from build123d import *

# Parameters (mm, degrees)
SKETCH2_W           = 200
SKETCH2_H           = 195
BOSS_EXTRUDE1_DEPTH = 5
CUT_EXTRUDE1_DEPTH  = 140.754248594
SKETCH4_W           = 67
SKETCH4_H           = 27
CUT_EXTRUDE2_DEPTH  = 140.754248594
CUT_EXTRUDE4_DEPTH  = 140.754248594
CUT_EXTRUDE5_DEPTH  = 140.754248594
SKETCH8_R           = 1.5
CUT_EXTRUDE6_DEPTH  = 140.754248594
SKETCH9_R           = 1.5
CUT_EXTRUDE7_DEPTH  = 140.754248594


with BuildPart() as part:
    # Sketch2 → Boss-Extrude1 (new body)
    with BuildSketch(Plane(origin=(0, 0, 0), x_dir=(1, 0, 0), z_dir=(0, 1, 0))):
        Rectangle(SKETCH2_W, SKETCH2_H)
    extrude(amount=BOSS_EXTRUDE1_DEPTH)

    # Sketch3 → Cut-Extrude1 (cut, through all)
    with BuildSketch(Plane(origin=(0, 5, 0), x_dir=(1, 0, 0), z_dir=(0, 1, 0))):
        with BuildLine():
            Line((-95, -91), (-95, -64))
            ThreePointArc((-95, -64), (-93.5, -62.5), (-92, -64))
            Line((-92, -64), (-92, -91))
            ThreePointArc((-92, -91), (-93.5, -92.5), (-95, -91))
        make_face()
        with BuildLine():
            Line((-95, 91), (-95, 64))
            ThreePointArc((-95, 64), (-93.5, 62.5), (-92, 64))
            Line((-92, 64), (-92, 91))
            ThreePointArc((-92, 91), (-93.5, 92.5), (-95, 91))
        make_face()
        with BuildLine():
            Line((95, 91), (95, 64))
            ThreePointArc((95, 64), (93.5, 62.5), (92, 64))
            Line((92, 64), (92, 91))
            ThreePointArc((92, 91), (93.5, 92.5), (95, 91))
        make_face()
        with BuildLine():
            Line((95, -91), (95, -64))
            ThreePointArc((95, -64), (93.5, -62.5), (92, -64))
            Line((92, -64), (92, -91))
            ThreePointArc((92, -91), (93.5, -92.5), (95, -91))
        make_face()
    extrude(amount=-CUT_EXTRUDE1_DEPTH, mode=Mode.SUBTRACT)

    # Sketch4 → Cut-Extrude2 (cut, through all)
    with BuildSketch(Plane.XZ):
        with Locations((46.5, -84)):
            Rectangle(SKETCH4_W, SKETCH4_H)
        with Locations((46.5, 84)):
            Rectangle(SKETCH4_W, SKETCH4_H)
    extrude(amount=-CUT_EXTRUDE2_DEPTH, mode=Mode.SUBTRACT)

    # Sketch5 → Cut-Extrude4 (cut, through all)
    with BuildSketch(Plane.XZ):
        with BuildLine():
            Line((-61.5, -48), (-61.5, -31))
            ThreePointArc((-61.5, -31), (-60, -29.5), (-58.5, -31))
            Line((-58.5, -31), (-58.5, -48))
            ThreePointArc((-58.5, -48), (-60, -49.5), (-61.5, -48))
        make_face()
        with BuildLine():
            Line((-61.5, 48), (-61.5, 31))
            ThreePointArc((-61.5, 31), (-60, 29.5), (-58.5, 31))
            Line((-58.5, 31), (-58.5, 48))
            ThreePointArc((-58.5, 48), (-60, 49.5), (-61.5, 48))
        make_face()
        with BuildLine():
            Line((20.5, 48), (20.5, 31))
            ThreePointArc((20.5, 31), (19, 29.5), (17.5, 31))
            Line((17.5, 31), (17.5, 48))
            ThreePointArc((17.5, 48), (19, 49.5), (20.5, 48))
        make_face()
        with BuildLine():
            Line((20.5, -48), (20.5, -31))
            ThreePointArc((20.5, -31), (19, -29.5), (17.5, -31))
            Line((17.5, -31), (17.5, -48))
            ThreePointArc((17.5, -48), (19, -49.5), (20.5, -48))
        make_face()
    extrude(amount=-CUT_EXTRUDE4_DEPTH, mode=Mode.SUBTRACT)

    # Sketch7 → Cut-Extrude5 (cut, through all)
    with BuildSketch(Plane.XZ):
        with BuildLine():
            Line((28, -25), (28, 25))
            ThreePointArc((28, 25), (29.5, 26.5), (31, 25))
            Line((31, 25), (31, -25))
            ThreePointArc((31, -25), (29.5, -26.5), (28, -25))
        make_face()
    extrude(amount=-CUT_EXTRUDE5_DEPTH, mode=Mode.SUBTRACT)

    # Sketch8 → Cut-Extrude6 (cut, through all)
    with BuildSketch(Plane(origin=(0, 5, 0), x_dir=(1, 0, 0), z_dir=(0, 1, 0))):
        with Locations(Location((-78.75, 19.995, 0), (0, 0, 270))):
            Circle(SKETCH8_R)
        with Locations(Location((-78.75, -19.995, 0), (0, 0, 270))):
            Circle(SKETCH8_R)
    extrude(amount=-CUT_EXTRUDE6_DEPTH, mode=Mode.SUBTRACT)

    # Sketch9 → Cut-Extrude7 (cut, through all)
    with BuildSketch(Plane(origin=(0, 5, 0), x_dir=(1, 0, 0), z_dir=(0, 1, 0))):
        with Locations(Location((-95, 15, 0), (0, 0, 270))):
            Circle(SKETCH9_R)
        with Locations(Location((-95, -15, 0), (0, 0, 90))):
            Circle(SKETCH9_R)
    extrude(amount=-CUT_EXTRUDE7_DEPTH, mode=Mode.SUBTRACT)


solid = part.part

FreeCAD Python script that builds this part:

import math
import FreeCAD as App
import Part
import Sketcher


def add_polygon(sketch, points):
    """Adds a closed chain of lines whose ends are joined by coincident constraints."""
    first, n = sketch.GeometryCount, len(points)
    for a, b in zip(points, points[1:] + points[:1]):
        sketch.addGeometry(Part.LineSegment(App.Vector(*a, 0), App.Vector(*b, 0)), False)
    for i in range(n):
        sketch.addConstraint(Sketcher.Constraint("Coincident", first + i, 2, first + (i + 1) % n, 1))

doc = App.newDocument("Part")
body = doc.addObject("PartDesign::Body", "Body")

# Sketch on XZ plane
sketch1 = doc.addObject("Sketcher::SketchObject", "Sketch")
body.addObject(sketch1)
sketch1.AttachmentSupport = (doc.XZ_Plane, [""])
sketch1.MapMode = "FlatFace"
add_polygon(sketch1, [(-100, -98), (-100, 98), (100, 98), (100, -98)])  # lines 0-3
sketch1.addConstraint(Sketcher.Constraint("Vertical", 0))
sketch1.addConstraint(Sketcher.Constraint("Horizontal", 1))
sketch1.addConstraint(Sketcher.Constraint("Vertical", 2))
sketch1.addConstraint(Sketcher.Constraint("Horizontal", 3))
sketch1.addConstraint(Sketcher.Constraint("Symmetric", 0, 2, 2, 2, -1, 1))
sketch1.addConstraint(Sketcher.Constraint("DistanceX", 1, 1, 1, 2, 200.0))
sketch1.addConstraint(Sketcher.Constraint("DistanceY", 0, 1, 0, 2, 195.0))
pad1 = doc.addObject("PartDesign::Pad", "Pad")
body.addObject(pad1)
pad1.Profile = sketch1
pad1.Length = 5
pad1.Reversed = True

# Sketch on XZ plane
sketch2 = doc.addObject("Sketcher::SketchObject", "Sketch001")
body.addObject(sketch2)
sketch2.AttachmentSupport = (doc.XZ_Plane, [""])
sketch2.MapMode = "FlatFace"
sketch2.AttachmentOffset = App.Placement(App.Vector(0, 0, -5), App.Rotation())
sketch2.addGeometry(Part.LineSegment(App.Vector(-95, 64, 0), App.Vector(-95, 91, 0)), False)
sketch2.addGeometry(Part.ArcOfCircle(Part.Circle(App.Vector(-93.5, 91, 0), App.Vector(0, 0, 1), 1.5), math.radians(0), math.radians(180)), False)
sketch2.addGeometry(Part.LineSegment(App.Vector(-92, 91, 0), App.Vector(-92, 64, 0)), False)
sketch2.addGeometry(Part.ArcOfCircle(Part.Circle(App.Vector(-93.5, 64, 0), App.Vector(0, 0, 1), 1.5), math.radians(180), math.radians(360)), False)
sketch2.addGeometry(Part.LineSegment(App.Vector(-95, -91, 0), App.Vector(-95, -64, 0)), False)
sketch2.addGeometry(Part.ArcOfCircle(Part.Circle(App.Vector(-93.5, -64, 0), App.Vector(0, 0, 1), 1.5), math.radians(0), math.radians(180)), False)
sketch2.addGeometry(Part.LineSegment(App.Vector(-92, -64, 0), App.Vector(-92, -91, 0)), False)
sketch2.addGeometry(Part.ArcOfCircle(Part.Circle(App.Vector(-93.5, -91, 0), App.Vector(0, 0, 1), 1.5), math.radians(180), math.radians(360)), False)
sketch2.addGeometry(Part.LineSegment(App.Vector(95, -64, 0), App.Vector(95, -91, 0)), False)
sketch2.addGeometry(Part.ArcOfCircle(Part.Circle(App.Vector(93.5, -91, 0), App.Vector(0, 0, 1), 1.5), math.radians(180), math.radians(360)), False)
sketch2.addGeometry(Part.LineSegment(App.Vector(92, -91, 0), App.Vector(92, -64, 0)), False)
sketch2.addGeometry(Part.ArcOfCircle(Part.Circle(App.Vector(93.5, -64, 0), App.Vector(0, 0, 1), 1.5), math.radians(0), math.radians(180)), False)
sketch2.addGeometry(Part.LineSegment(App.Vector(95, 91, 0), App.Vector(95, 64, 0)), False)
sketch2.addGeometry(Part.ArcOfCircle(Part.Circle(App.Vector(93.5, 64, 0), App.Vector(0, 0, 1), 1.5), math.radians(180), math.radians(360)), False)
sketch2.addGeometry(Part.LineSegment(App.Vector(92, 64, 0), App.Vector(92, 91, 0)), False)
sketch2.addGeometry(Part.ArcOfCircle(Part.Circle(App.Vector(93.5, 91, 0), App.Vector(0, 0, 1), 1.5), math.radians(0), math.radians(180)), False)
sketch2.addConstraint(Sketcher.Constraint("Tangent", 0, 2, 1, 2))
sketch2.addConstraint(Sketcher.Constraint("Tangent", 1, 1, 2, 1))
sketch2.addConstraint(Sketcher.Constraint("Tangent", 2, 2, 3, 2))
sketch2.addConstraint(Sketcher.Constraint("Tangent", 3, 1, 0, 1))
sketch2.addConstraint(Sketcher.Constraint("Tangent", 4, 2, 5, 2))
sketch2.addConstraint(Sketcher.Constraint("Tangent", 5, 1, 6, 1))
sketch2.addConstraint(Sketcher.Constraint("Tangent", 6, 2, 7, 2))
sketch2.addConstraint(Sketcher.Constraint("Tangent", 7, 1, 4, 1))
sketch2.addConstraint(Sketcher.Constraint("Tangent", 8, 2, 9, 2))
sketch2.addConstraint(Sketcher.Constraint("Tangent", 9, 1, 10, 1))
sketch2.addConstraint(Sketcher.Constraint("Tangent", 10, 2, 11, 2))
sketch2.addConstraint(Sketcher.Constraint("Tangent", 11, 1, 8, 1))
sketch2.addConstraint(Sketcher.Constraint("Tangent", 12, 2, 13, 2))
sketch2.addConstraint(Sketcher.Constraint("Tangent", 13, 1, 14, 1))
sketch2.addConstraint(Sketcher.Constraint("Tangent", 14, 2, 15, 2))
sketch2.addConstraint(Sketcher.Constraint("Tangent", 15, 1, 12, 1))
sketch2.addConstraint(Sketcher.Constraint("Vertical", 0))
sketch2.addConstraint(Sketcher.Constraint("Vertical", 2))
sketch2.addConstraint(Sketcher.Constraint("Vertical", 4))
sketch2.addConstraint(Sketcher.Constraint("Vertical", 6))
sketch2.addConstraint(Sketcher.Constraint("Vertical", 8))
sketch2.addConstraint(Sketcher.Constraint("Vertical", 10))
sketch2.addConstraint(Sketcher.Constraint("Vertical", 12))
sketch2.addConstraint(Sketcher.Constraint("Vertical", 14))
sketch2.addConstraint(Sketcher.Constraint("Equal", 3, 5))
sketch2.addConstraint(Sketcher.Constraint("Equal", 7, 9))
sketch2.addConstraint(Sketcher.Constraint("Equal", 11, 13))
sketch2.addConstraint(Sketcher.Constraint("Symmetric", 1, 3, 9, 3, -1, 1))
sketch2.addConstraint(Sketcher.Constraint("Symmetric", 5, 3, 13, 3, -1, 1))
sketch2.addConstraint(Sketcher.Constraint("Symmetric", 7, 3, 9, 3, -2))
sketch2.addConstraint(Sketcher.Constraint("Horizontal", 5, 3, 11, 3))
sketch2.addConstraint(Sketcher.Constraint("Horizontal", 3, 3, 13, 3))
sketch2.addConstraint(Sketcher.Constraint("Horizontal", 1, 3, 15, 3))
sketch2.addConstraint(Sketcher.Constraint("Radius", 1, 1.5))
sketch2.addConstraint(Sketcher.Constraint("DistanceY", 0, 1, 0, 2, 27.0))
sketch2.addConstraint(Sketcher.Constraint("DistanceY", -1, 1, 1, 3, 91.0))
sketch2.addConstraint(Sketcher.Constraint("DistanceX", 0, 2, -1, 1, 95.0))
pocket1 = doc.addObject("PartDesign::Pocket", "Pocket")
body.addObject(pocket1)
pocket1.Profile = sketch2
pocket1.Type = "ThroughAll"
pocket1.Reversed = True

# Sketch on XZ plane
sketch3 = doc.addObject("Sketcher::SketchObject", "Sketch002")
body.addObject(sketch3)
sketch3.AttachmentSupport = (doc.XZ_Plane, [""])
sketch3.MapMode = "FlatFace"
add_polygon(sketch3, [(13, -70), (13, -98), (80, -98), (80, -70)])  # lines 0-3
add_polygon(sketch3, [(13, 98), (13, 70), (80, 70), (80, 98)])  # lines 4-7
sketch3.addConstraint(Sketcher.Constraint("Vertical", 0))
sketch3.addConstraint(Sketcher.Constraint("Horizontal", 1))
sketch3.addConstraint(Sketcher.Constraint("Vertical", 2))
sketch3.addConstraint(Sketcher.Constraint("Horizontal", 3))
sketch3.addConstraint(Sketcher.Constraint("Vertical", 4))
sketch3.addConstraint(Sketcher.Constraint("Horizontal", 5))
sketch3.addConstraint(Sketcher.Constraint("Vertical", 6))
sketch3.addConstraint(Sketcher.Constraint("Horizontal", 7))
sketch3.addConstraint(Sketcher.Constraint("Symmetric", 3, 2, 4, 2, -1))
sketch3.addConstraint(Sketcher.Constraint("Symmetric", 1, 2, 6, 2, -1))
sketch3.addConstraint(Sketcher.Constraint("DistanceX", 1, 1, 1, 2, 67.0))
sketch3.addConstraint(Sketcher.Constraint("DistanceY", 0, 2, 0, 1, 27.0))
sketch3.addConstraint(Sketcher.Constraint("DistanceX", -1, 1, 0, 2, 13.0))
sketch3.addConstraint(Sketcher.Constraint("DistanceY", 3, 2, 4, 2, 141.0))
pocket2 = doc.addObject("PartDesign::Pocket", "Pocket001")
body.addObject(pocket2)
pocket2.Profile = sketch3
pocket2.Type = "ThroughAll"

# Sketch on XZ plane
sketch4 = doc.addObject("Sketcher::SketchObject", "Sketch003")
body.addObject(sketch4)
sketch4.AttachmentSupport = (doc.XZ_Plane, [""])
sketch4.MapMode = "FlatFace"
sketch4.addGeometry(Part.LineSegment(App.Vector(-61.5, -31, 0), App.Vector(-61.5, -48, 0)), False)
sketch4.addGeometry(Part.ArcOfCircle(Part.Circle(App.Vector(-60, -48, 0), App.Vector(0, 0, 1), 1.5), math.radians(180), math.radians(360)), False)
sketch4.addGeometry(Part.LineSegment(App.Vector(-58.5, -48, 0), App.Vector(-58.5, -31, 0)), False)
sketch4.addGeometry(Part.ArcOfCircle(Part.Circle(App.Vector(-60, -31, 0), App.Vector(0, 0, 1), 1.5), math.radians(0), math.radians(180)), False)
sketch4.addGeometry(Part.LineSegment(App.Vector(-61.5, 48, 0), App.Vector(-61.5, 31, 0)), False)
sketch4.addGeometry(Part.ArcOfCircle(Part.Circle(App.Vector(-60, 31, 0), App.Vector(0, 0, 1), 1.5), math.radians(180), math.radians(360)), False)
sketch4.addGeometry(Part.LineSegment(App.Vector(-58.5, 31, 0), App.Vector(-58.5, 48, 0)), False)
sketch4.addGeometry(Part.ArcOfCircle(Part.Circle(App.Vector(-60, 48, 0), App.Vector(0, 0, 1), 1.5), math.radians(0), math.radians(180)), False)
sketch4.addGeometry(Part.LineSegment(App.Vector(20.5, 31, 0), App.Vector(20.5, 48, 0)), False)
sketch4.addGeometry(Part.ArcOfCircle(Part.Circle(App.Vector(19, 48, 0), App.Vector(0, 0, 1), 1.5), math.radians(0), math.radians(180)), False)
sketch4.addGeometry(Part.LineSegment(App.Vector(17.5, 48, 0), App.Vector(17.5, 31, 0)), False)
sketch4.addGeometry(Part.ArcOfCircle(Part.Circle(App.Vector(19, 31, 0), App.Vector(0, 0, 1), 1.5), math.radians(180), math.radians(360)), False)
sketch4.addGeometry(Part.LineSegment(App.Vector(20.5, -48, 0), App.Vector(20.5, -31, 0)), False)
sketch4.addGeometry(Part.ArcOfCircle(Part.Circle(App.Vector(19, -31, 0), App.Vector(0, 0, 1), 1.5), math.radians(0), math.radians(180)), False)
sketch4.addGeometry(Part.LineSegment(App.Vector(17.5, -31, 0), App.Vector(17.5, -48, 0)), False)
sketch4.addGeometry(Part.ArcOfCircle(Part.Circle(App.Vector(19, -48, 0), App.Vector(0, 0, 1), 1.5), math.radians(180), math.radians(360)), False)
sketch4.addConstraint(Sketcher.Constraint("Tangent", 0, 2, 1, 1))
sketch4.addConstraint(Sketcher.Constraint("Tangent", 1, 2, 2, 1))
sketch4.addConstraint(Sketcher.Constraint("Tangent", 2, 2, 3, 1))
sketch4.addConstraint(Sketcher.Constraint("Tangent", 3, 2, 0, 1))
sketch4.addConstraint(Sketcher.Constraint("Tangent", 4, 2, 5, 1))
sketch4.addConstraint(Sketcher.Constraint("Tangent", 5, 2, 6, 1))
sketch4.addConstraint(Sketcher.Constraint("Tangent", 6, 2, 7, 1))
sketch4.addConstraint(Sketcher.Constraint("Tangent", 7, 2, 4, 1))
sketch4.addConstraint(Sketcher.Constraint("Tangent", 8, 2, 9, 1))
sketch4.addConstraint(Sketcher.Constraint("Tangent", 9, 2, 10, 1))
sketch4.addConstraint(Sketcher.Constraint("Tangent", 10, 2, 11, 1))
sketch4.addConstraint(Sketcher.Constraint("Tangent", 11, 2, 8, 1))
sketch4.addConstraint(Sketcher.Constraint("Tangent", 12, 2, 13, 1))
sketch4.addConstraint(Sketcher.Constraint("Tangent", 13, 2, 14, 1))
sketch4.addConstraint(Sketcher.Constraint("Tangent", 14, 2, 15, 1))
sketch4.addConstraint(Sketcher.Constraint("Tangent", 15, 2, 12, 1))
sketch4.addConstraint(Sketcher.Constraint("Vertical", 0))
sketch4.addConstraint(Sketcher.Constraint("Vertical", 2))
sketch4.addConstraint(Sketcher.Constraint("Vertical", 4))
sketch4.addConstraint(Sketcher.Constraint("Vertical", 6))
sketch4.addConstraint(Sketcher.Constraint("Vertical", 8))
sketch4.addConstraint(Sketcher.Constraint("Vertical", 10))
sketch4.addConstraint(Sketcher.Constraint("Vertical", 12))
sketch4.addConstraint(Sketcher.Constraint("Vertical", 14))
sketch4.addConstraint(Sketcher.Constraint("Equal", 3, 5))
sketch4.addConstraint(Sketcher.Constraint("Equal", 7, 9))
sketch4.addConstraint(Sketcher.Constraint("Equal", 11, 13))
sketch4.addConstraint(Sketcher.Constraint("Symmetric", 3, 3, 5, 3, -1))
sketch4.addConstraint(Sketcher.Constraint("Symmetric", 11, 3, 13, 3, -1))
sketch4.addConstraint(Sketcher.Constraint("Horizontal", 7, 3, 9, 3))
sketch4.addConstraint(Sketcher.Constraint("Horizontal", 5, 3, 11, 3))
sketch4.addConstraint(Sketcher.Constraint("Horizontal", 1, 3, 15, 3))
sketch4.addConstraint(Sketcher.Constraint("Equal", 2, 4))
sketch4.addConstraint(Sketcher.Constraint("Radius", 1, 1.5))
sketch4.addConstraint(Sketcher.Constraint("DistanceY", 0, 2, 0, 1, 17.0))
sketch4.addConstraint(Sketcher.Constraint("DistanceX", 1, 3, -1, 1, 60.0))
sketch4.addConstraint(Sketcher.Constraint("DistanceY", 1, 3, -1, 1, 48.0))
sketch4.addConstraint(Sketcher.Constraint("DistanceX", -1, 1, 9, 3, 19.0))
pocket3 = doc.addObject("PartDesign::Pocket", "Pocket002")
body.addObject(pocket3)
pocket3.Profile = sketch4
pocket3.Type = "ThroughAll"

# Sketch on XZ plane
sketch5 = doc.addObject("Sketcher::SketchObject", "Sketch004")
body.addObject(sketch5)
sketch5.AttachmentSupport = (doc.XZ_Plane, [""])
sketch5.MapMode = "FlatFace"
sketch5.addGeometry(Part.LineSegment(App.Vector(28, 25, 0), App.Vector(28, -25, 0)), False)
sketch5.addGeometry(Part.ArcOfCircle(Part.Circle(App.Vector(29.5, -25, 0), App.Vector(0, 0, 1), 1.5), math.radians(180), math.radians(360)), False)
sketch5.addGeometry(Part.LineSegment(App.Vector(31, -25, 0), App.Vector(31, 25, 0)), False)
sketch5.addGeometry(Part.ArcOfCircle(Part.Circle(App.Vector(29.5, 25, 0), App.Vector(0, 0, 1), 1.5), math.radians(0), math.radians(180)), False)
sketch5.addConstraint(Sketcher.Constraint("Tangent", 0, 2, 1, 1))
sketch5.addConstraint(Sketcher.Constraint("Tangent", 1, 2, 2, 1))
sketch5.addConstraint(Sketcher.Constraint("Tangent", 2, 2, 3, 1))
sketch5.addConstraint(Sketcher.Constraint("Tangent", 3, 2, 0, 1))
sketch5.addConstraint(Sketcher.Constraint("Vertical", 0))
sketch5.addConstraint(Sketcher.Constraint("Vertical", 2))
sketch5.addConstraint(Sketcher.Constraint("Radius", 1, 1.5))
sketch5.addConstraint(Sketcher.Constraint("DistanceY", 0, 2, 0, 1, 50.0))
sketch5.addConstraint(Sketcher.Constraint("DistanceY", 1, 3, -1, 1, 25.0))
sketch5.addConstraint(Sketcher.Constraint("DistanceX", -1, 1, 0, 2, 28.0))
pocket4 = doc.addObject("PartDesign::Pocket", "Pocket003")
body.addObject(pocket4)
pocket4.Profile = sketch5
pocket4.Type = "ThroughAll"

# Sketch on XZ plane
sketch6 = doc.addObject("Sketcher::SketchObject", "Sketch005")
body.addObject(sketch6)
sketch6.AttachmentSupport = (doc.XZ_Plane, [""])
sketch6.MapMode = "FlatFace"
sketch6.AttachmentOffset = App.Placement(App.Vector(0, 0, -5), App.Rotation())
sketch6.addGeometry(Part.Circle(App.Vector(-78.8, -20, 0), App.Vector(0, 0, 1), 1.5), False)
sketch6.addGeometry(Part.Circle(App.Vector(-78.8, 20, 0), App.Vector(0, 0, 1), 1.5), False)
sketch6.addConstraint(Sketcher.Constraint("Equal", 0, 1))
sketch6.addConstraint(Sketcher.Constraint("Symmetric", 0, 3, 1, 3, -1))
sketch6.addConstraint(Sketcher.Constraint("Diameter", 0, 3.0))
sketch6.addConstraint(Sketcher.Constraint("DistanceX", 0, 3, -1, 1, 78.75))
sketch6.addConstraint(Sketcher.Constraint("DistanceY", 0, 3, 1, 3, 39.99))
pocket5 = doc.addObject("PartDesign::Pocket", "Pocket004")
body.addObject(pocket5)
pocket5.Profile = sketch6
pocket5.Type = "ThroughAll"
pocket5.Reversed = True

# Sketch on XZ plane
sketch7 = doc.addObject("Sketcher::SketchObject", "Sketch006")
body.addObject(sketch7)
sketch7.AttachmentSupport = (doc.XZ_Plane, [""])
sketch7.MapMode = "FlatFace"
sketch7.AttachmentOffset = App.Placement(App.Vector(0, 0, -5), App.Rotation())
sketch7.addGeometry(Part.Circle(App.Vector(-95, -15, 0), App.Vector(0, 0, 1), 1.5), False)
sketch7.addGeometry(Part.Circle(App.Vector(-95, 15, 0), App.Vector(0, 0, 1), 1.5), False)
sketch7.addConstraint(Sketcher.Constraint("Equal", 0, 1))
sketch7.addConstraint(Sketcher.Constraint("Symmetric", 0, 3, 1, 3, -1))
sketch7.addConstraint(Sketcher.Constraint("Diameter", 0, 3.0))
sketch7.addConstraint(Sketcher.Constraint("DistanceX", 0, 3, -1, 1, 95.0))
sketch7.addConstraint(Sketcher.Constraint("DistanceY", 0, 3, -1, 1, 15.0))
pocket6 = doc.addObject("PartDesign::Pocket", "Pocket005")
body.addObject(pocket6)
pocket6.Profile = sketch7
pocket6.Type = "ThroughAll"
pocket6.Reversed = True

doc.recompute()
